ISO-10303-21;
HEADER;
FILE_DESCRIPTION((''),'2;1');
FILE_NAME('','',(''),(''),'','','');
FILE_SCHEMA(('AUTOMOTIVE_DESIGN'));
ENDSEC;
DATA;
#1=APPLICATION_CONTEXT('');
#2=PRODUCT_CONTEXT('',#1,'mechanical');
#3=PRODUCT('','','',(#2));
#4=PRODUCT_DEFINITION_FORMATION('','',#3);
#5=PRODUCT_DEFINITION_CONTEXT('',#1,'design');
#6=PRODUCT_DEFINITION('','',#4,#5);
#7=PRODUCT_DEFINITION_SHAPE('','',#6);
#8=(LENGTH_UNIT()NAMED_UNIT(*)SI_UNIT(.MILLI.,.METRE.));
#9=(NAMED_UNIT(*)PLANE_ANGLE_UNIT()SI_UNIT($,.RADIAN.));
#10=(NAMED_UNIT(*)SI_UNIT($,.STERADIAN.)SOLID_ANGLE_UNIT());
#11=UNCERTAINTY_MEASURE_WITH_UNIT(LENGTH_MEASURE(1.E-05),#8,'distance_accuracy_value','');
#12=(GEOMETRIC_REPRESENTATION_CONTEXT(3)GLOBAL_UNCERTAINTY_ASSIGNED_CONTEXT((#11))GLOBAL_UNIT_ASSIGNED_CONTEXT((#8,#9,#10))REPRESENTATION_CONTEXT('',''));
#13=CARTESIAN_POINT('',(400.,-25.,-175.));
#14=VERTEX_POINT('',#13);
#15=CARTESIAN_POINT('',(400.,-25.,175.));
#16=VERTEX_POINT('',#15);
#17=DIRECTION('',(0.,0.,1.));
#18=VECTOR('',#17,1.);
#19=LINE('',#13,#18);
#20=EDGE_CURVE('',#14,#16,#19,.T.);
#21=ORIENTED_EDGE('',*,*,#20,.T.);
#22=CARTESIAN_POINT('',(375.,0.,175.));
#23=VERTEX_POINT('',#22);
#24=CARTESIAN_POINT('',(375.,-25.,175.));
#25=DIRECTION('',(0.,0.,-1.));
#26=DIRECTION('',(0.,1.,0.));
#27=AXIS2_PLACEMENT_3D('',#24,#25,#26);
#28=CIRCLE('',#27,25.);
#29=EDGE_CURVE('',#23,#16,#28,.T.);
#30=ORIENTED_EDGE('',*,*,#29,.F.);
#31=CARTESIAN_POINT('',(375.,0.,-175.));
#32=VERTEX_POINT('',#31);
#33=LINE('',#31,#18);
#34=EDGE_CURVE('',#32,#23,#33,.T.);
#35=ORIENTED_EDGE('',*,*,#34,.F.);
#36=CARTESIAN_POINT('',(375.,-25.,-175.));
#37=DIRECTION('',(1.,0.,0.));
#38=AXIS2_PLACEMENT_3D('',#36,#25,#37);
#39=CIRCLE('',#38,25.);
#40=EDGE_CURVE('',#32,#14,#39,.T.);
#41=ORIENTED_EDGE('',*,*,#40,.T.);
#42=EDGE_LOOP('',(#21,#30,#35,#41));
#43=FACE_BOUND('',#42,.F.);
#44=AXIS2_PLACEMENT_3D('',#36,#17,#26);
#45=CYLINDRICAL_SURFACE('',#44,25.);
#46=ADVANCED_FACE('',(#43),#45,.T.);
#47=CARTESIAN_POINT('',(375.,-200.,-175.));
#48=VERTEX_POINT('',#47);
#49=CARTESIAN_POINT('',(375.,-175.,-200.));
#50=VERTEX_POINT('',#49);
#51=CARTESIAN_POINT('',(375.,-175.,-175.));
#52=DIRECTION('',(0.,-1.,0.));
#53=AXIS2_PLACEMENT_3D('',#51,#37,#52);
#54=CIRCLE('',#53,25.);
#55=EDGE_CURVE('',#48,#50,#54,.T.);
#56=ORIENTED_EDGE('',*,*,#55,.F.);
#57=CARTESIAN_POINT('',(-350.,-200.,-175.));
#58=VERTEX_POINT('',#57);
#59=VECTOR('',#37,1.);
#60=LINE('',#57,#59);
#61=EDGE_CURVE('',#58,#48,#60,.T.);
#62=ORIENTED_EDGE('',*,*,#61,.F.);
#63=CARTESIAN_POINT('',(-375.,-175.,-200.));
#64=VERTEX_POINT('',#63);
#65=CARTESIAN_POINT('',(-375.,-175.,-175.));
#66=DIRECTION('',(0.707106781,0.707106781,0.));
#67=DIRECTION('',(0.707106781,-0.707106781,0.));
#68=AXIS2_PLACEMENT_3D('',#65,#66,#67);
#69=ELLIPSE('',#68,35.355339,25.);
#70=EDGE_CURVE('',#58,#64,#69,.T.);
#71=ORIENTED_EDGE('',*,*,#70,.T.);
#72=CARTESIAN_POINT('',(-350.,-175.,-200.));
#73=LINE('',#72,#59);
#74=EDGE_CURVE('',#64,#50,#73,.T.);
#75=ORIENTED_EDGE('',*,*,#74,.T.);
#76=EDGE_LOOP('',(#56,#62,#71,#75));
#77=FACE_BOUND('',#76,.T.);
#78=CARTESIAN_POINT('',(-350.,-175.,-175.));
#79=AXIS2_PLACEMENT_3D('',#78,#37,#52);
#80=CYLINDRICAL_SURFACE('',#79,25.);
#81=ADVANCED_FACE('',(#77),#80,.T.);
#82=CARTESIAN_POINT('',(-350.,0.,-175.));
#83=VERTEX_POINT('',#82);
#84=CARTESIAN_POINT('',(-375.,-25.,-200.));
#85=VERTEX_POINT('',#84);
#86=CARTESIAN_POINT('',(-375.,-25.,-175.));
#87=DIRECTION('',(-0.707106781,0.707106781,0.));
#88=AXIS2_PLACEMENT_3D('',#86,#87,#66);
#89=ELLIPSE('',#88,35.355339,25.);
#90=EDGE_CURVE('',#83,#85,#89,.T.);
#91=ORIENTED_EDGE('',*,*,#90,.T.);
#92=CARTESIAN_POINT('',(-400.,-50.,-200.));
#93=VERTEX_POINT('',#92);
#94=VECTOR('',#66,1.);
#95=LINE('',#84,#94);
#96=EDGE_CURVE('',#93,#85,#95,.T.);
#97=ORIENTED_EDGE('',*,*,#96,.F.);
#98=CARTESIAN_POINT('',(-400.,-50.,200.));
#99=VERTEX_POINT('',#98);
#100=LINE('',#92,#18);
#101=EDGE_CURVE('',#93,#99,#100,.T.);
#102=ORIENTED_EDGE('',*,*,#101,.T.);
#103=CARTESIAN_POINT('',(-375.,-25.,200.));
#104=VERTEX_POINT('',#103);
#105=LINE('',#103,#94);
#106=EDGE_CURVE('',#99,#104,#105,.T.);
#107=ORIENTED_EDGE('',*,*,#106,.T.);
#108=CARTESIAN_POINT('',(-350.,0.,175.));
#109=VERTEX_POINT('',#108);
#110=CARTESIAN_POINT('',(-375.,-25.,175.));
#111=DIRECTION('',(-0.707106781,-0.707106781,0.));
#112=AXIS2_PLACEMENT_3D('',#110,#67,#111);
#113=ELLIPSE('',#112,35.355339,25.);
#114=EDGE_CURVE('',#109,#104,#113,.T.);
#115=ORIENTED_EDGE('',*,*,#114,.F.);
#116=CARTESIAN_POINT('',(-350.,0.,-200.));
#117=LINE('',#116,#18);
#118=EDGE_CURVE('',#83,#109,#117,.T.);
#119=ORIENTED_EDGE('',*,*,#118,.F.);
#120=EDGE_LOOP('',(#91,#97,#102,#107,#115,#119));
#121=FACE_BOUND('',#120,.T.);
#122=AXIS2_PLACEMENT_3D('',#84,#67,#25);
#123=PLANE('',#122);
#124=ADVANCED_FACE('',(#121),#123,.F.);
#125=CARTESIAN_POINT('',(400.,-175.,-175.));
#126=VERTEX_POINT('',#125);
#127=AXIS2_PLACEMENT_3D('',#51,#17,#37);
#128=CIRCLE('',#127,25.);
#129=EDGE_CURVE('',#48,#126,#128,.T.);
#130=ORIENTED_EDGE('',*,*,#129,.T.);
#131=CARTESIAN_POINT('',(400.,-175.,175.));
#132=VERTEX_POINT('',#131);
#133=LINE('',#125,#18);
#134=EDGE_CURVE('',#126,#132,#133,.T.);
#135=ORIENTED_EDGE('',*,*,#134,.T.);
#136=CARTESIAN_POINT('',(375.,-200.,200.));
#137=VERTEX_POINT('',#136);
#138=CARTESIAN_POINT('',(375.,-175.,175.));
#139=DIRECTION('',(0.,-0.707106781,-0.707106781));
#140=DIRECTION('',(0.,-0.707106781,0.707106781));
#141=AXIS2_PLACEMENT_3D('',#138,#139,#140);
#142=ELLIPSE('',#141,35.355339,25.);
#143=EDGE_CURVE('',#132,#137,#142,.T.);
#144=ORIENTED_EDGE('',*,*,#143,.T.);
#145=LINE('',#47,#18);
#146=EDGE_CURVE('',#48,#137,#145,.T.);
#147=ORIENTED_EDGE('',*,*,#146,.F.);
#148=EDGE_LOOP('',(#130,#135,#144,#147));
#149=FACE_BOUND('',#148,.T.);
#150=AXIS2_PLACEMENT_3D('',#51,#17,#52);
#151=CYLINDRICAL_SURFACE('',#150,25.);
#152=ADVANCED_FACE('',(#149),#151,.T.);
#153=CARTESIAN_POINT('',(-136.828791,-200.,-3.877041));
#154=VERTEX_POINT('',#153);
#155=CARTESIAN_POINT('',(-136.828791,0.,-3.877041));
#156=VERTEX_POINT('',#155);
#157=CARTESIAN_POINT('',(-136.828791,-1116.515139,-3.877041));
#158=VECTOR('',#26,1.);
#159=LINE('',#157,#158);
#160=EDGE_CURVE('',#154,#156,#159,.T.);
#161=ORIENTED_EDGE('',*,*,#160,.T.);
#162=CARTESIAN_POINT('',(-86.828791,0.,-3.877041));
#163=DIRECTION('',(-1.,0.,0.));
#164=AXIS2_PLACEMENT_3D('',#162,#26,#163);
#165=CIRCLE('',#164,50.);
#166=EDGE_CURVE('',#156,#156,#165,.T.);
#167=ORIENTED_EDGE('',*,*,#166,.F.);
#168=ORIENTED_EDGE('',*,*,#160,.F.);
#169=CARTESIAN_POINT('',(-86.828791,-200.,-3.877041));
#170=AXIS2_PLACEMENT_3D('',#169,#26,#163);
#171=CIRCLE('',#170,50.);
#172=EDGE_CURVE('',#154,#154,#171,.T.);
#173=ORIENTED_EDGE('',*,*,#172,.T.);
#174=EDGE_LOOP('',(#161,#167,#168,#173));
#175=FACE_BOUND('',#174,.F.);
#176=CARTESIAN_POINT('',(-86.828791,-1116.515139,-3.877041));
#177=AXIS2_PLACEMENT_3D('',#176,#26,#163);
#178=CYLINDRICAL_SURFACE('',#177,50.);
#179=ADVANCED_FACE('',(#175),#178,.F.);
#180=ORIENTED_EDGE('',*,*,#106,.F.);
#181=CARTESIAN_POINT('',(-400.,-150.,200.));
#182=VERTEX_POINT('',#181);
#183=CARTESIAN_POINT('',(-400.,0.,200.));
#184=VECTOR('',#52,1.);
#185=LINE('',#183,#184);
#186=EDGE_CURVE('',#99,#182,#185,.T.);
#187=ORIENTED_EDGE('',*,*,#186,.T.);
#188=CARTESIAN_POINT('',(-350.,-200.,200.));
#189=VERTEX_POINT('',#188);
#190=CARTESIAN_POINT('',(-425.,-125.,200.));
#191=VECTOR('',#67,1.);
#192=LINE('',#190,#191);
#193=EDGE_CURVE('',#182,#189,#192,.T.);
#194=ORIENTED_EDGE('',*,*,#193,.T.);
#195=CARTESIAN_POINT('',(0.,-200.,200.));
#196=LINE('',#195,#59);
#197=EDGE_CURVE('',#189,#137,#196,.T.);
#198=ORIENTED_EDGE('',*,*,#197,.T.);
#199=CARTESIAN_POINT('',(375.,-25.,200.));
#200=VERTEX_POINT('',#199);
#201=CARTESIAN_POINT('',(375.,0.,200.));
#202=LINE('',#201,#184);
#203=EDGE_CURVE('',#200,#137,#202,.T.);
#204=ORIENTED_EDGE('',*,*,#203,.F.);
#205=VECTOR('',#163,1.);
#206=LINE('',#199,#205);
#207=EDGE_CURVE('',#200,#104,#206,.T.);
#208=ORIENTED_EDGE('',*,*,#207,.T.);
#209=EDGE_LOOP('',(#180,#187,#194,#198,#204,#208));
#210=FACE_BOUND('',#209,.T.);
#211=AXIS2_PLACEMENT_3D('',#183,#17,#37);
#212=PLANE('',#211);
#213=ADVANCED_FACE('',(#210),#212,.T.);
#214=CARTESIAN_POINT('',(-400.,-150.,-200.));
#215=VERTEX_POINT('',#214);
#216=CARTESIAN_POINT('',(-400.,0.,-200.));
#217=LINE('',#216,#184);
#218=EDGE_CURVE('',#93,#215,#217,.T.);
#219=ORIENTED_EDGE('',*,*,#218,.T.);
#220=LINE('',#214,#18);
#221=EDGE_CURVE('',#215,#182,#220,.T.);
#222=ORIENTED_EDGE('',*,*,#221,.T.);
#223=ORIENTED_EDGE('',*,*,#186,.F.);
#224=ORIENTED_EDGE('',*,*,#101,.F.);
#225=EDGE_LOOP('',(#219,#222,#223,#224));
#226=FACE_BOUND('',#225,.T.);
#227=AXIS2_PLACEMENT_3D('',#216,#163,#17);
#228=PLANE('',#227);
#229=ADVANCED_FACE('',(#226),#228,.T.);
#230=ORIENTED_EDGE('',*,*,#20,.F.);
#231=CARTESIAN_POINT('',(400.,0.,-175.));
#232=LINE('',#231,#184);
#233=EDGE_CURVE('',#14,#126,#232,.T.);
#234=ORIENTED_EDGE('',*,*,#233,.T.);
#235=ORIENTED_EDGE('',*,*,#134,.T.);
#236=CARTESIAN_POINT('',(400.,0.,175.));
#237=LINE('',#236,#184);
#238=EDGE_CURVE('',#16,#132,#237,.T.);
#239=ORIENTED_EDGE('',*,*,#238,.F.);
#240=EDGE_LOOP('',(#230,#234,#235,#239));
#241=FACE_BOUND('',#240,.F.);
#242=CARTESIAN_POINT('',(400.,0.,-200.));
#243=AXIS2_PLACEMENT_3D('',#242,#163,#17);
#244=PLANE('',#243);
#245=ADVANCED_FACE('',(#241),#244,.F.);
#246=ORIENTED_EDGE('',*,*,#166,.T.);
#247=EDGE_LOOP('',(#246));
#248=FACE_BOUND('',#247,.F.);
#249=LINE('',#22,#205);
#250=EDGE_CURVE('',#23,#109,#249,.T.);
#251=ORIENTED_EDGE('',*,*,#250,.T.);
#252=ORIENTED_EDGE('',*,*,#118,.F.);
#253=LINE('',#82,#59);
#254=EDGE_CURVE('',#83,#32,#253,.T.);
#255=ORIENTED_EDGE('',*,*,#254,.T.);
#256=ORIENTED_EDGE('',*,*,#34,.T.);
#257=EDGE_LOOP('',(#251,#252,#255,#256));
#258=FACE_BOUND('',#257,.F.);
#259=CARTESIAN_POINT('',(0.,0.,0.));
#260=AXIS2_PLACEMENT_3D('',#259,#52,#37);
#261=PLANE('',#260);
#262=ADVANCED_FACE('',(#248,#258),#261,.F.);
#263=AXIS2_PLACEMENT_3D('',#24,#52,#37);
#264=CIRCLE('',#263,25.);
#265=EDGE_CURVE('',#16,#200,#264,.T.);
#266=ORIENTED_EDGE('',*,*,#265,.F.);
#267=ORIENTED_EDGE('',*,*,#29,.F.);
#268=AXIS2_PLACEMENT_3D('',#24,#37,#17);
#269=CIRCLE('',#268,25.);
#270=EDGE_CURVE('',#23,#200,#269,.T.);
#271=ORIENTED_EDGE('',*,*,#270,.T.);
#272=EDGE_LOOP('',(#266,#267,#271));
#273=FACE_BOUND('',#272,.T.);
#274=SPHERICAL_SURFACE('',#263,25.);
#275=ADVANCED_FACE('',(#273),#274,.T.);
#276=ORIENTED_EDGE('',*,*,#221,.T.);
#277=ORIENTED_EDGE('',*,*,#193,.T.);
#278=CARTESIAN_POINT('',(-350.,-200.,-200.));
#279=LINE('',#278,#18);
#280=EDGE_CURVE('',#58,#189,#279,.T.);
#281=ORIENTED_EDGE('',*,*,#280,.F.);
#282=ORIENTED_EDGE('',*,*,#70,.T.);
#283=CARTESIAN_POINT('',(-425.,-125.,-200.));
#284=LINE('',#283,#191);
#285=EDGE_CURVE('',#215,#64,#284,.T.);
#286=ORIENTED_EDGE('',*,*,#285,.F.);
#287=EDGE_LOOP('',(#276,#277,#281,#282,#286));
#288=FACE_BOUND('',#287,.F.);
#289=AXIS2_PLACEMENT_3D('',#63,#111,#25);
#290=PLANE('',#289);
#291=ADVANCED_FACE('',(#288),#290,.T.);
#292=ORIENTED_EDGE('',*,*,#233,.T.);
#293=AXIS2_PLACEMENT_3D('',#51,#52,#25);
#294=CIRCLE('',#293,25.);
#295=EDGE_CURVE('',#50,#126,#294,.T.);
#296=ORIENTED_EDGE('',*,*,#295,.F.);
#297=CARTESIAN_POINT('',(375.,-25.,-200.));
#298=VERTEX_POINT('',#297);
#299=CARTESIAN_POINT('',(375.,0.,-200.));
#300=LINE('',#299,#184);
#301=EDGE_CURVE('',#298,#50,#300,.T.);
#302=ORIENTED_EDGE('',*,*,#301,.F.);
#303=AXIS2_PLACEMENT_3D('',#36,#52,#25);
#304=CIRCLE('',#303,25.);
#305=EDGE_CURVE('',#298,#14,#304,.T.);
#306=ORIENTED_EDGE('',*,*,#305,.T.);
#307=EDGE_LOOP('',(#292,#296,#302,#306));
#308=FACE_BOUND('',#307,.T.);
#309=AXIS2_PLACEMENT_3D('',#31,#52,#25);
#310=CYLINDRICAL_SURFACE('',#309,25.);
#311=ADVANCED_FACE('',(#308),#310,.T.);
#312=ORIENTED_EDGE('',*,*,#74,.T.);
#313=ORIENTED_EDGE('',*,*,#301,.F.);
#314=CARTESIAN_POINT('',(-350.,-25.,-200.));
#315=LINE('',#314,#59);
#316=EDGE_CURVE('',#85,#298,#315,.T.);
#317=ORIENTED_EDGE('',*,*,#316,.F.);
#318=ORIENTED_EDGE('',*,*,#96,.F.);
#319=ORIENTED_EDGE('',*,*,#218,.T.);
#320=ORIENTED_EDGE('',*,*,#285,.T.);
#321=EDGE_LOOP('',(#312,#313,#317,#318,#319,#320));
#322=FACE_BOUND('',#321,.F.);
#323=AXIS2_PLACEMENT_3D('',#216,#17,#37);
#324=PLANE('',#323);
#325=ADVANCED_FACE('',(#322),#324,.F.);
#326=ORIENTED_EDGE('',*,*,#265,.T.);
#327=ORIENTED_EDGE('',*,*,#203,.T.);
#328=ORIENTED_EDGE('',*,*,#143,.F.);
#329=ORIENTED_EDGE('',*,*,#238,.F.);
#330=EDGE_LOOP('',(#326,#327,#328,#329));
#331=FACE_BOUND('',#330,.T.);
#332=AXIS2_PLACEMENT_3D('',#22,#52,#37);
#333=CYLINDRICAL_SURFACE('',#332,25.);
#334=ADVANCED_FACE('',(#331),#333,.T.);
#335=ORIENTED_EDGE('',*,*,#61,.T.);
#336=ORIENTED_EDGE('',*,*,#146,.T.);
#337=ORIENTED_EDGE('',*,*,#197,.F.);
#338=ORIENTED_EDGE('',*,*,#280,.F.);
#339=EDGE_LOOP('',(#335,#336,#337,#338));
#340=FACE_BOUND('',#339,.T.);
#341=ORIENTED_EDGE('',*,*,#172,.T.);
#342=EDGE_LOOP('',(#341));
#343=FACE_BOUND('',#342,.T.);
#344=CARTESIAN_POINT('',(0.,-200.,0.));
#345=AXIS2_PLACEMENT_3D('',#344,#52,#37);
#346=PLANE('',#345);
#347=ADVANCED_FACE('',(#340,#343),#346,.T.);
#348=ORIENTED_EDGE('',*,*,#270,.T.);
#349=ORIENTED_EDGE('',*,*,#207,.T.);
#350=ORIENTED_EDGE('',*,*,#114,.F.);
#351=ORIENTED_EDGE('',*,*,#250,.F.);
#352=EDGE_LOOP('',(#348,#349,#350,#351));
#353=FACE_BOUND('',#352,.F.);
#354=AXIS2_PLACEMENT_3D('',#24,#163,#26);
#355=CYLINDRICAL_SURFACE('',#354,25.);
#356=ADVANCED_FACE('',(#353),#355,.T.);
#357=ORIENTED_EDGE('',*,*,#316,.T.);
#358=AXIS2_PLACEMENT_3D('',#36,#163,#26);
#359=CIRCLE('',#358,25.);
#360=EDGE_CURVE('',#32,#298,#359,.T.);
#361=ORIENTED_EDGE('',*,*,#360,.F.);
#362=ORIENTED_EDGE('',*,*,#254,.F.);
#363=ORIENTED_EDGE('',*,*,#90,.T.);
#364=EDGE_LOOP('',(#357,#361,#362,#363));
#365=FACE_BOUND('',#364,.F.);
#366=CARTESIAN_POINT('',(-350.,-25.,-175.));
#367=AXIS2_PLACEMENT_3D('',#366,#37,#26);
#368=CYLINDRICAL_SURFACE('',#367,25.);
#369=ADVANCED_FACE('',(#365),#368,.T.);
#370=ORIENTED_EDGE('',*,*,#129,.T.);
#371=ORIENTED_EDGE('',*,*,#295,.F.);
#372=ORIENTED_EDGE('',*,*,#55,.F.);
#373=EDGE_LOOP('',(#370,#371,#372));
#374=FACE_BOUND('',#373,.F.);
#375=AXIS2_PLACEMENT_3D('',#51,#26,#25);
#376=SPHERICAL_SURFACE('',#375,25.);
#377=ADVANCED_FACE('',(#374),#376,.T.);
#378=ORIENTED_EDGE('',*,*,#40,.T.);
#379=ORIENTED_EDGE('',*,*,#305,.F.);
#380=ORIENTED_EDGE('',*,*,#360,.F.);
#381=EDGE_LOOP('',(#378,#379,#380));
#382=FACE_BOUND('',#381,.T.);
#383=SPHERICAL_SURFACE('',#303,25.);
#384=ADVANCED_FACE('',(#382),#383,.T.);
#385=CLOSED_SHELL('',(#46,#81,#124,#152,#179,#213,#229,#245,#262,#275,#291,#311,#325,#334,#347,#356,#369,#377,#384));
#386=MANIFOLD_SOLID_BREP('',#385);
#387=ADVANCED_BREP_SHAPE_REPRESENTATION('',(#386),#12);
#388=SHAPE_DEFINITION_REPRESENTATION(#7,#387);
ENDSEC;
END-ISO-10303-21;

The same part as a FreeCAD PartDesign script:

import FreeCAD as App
import Part
import Sketcher
Q = App.Units.Quantity


def edges_at(feature, points):
    """Names of the edges that pass closest to the given points."""
    edges = feature.Shape.Edges
    near = lambda p: min(range(len(edges)), key=lambda i: edges[i].distToShape(Part.Vertex(*p))[0])
    return sorted({f"Edge{near(p) + 1}" for p in points})


def add_polygon(sketch, points):
    """Adds a closed chain of lines whose ends are joined by coincident constraints."""
    first, n = sketch.GeometryCount, len(points)
    for a, b in zip(points, points[1:] + points[:1]):
        sketch.addGeometry(Part.LineSegment(App.Vector(*a, 0), App.Vector(*b, 0)), False)
    for i in range(n):
        sketch.addConstraint(Sketcher.Constraint("Coincident", first + i, 2, first + (i + 1) % n, 1))

doc = App.newDocument("Part")
body = doc.addObject("PartDesign::Body", "Body")

# Sketch on XZ plane
sketch1 = body.newObject("Sketcher::SketchObject", "Sketch")
sketch1.AttachmentSupport = (doc.getObject("XZ_Plane"), [""])
sketch1.MapMode = "FlatFace"
add_polygon(sketch1, [(-400, 200), (-400, -200), (400, -200), (400, 200)])  # lines 0-3
sketch1.addConstraint([
    Sketcher.Constraint("Vertical", 0),
    Sketcher.Constraint("Horizontal", 1),
    Sketcher.Constraint("Vertical", 2),
    Sketcher.Constraint("Horizontal", 3),
    Sketcher.Constraint("Symmetric", 0, 2, 2, 2, -1, 1),
    Sketcher.Constraint("DistanceX", 1, 1, 1, 2, Q("800 mm")),
    Sketcher.Constraint("DistanceY", 0, 2, 0, 1, Q("400 mm")),
])
pad1 = body.newObject("PartDesign::Pad", "Pad")
pad1.Profile = sketch1
pad1.Length = 200
doc.recompute()

chamfer = body.newObject("PartDesign::Chamfer", "Chamfer")
chamfer.Base = (pad1, edges_at(pad1, [(-400, -200, 0), (-400, 0, 0)]))
chamfer.Size = 50
doc.recompute()

fillet = body.newObject("PartDesign::Fillet", "Fillet")
fillet.Base = (chamfer, edges_at(chamfer, [(400, -100, -200)]))
fillet.Radius = 25
doc.recompute()

fillet2 = body.newObject("PartDesign::Fillet", "Fillet001")
fillet2.Base = (fillet, edges_at(fillet, [(400, -100, 200), (400, -200, 12.5)]))
fillet2.Radius = 25
doc.recompute()

fillet3 = body.newObject("PartDesign::Fillet", "Fillet002")
fillet3.Base = (fillet2, edges_at(fillet2, [(400, 0, 0)]))
fillet3.Radius = 25

# Sketch on XZ plane
sketch2 = body.newObject("Sketcher::SketchObject", "Sketch001")
sketch2.AttachmentSupport = (doc.getObject("XZ_Plane"), [""])
sketch2.MapMode = "FlatFace"
sketch2.AttachmentOffset = App.Placement(App.Vector(0, 0, 200), App.Rotation())
sketch2.addGeometry(Part.Circle(App.Vector(-87, -4, 0), App.Vector(0, 0, 1), 50), False)
sketch2.addConstraint([
    Sketcher.Constraint("Diameter", 0, Q("100 mm")),
    Sketcher.Constraint("DistanceX", 0, 3, -1, 1, Q("86.828791 mm")),
    Sketcher.Constraint("DistanceY", 0, 3, -1, 1, Q("3.877041 mm")),
])
doc.recompute()
hole = body.newObject("PartDesign::Hole", "Hole")
hole.Profile = sketch2
hole.ThreadType = "None"
hole.Diameter = 100
hole.DepthType = "ThroughAll"

doc.recompute()
